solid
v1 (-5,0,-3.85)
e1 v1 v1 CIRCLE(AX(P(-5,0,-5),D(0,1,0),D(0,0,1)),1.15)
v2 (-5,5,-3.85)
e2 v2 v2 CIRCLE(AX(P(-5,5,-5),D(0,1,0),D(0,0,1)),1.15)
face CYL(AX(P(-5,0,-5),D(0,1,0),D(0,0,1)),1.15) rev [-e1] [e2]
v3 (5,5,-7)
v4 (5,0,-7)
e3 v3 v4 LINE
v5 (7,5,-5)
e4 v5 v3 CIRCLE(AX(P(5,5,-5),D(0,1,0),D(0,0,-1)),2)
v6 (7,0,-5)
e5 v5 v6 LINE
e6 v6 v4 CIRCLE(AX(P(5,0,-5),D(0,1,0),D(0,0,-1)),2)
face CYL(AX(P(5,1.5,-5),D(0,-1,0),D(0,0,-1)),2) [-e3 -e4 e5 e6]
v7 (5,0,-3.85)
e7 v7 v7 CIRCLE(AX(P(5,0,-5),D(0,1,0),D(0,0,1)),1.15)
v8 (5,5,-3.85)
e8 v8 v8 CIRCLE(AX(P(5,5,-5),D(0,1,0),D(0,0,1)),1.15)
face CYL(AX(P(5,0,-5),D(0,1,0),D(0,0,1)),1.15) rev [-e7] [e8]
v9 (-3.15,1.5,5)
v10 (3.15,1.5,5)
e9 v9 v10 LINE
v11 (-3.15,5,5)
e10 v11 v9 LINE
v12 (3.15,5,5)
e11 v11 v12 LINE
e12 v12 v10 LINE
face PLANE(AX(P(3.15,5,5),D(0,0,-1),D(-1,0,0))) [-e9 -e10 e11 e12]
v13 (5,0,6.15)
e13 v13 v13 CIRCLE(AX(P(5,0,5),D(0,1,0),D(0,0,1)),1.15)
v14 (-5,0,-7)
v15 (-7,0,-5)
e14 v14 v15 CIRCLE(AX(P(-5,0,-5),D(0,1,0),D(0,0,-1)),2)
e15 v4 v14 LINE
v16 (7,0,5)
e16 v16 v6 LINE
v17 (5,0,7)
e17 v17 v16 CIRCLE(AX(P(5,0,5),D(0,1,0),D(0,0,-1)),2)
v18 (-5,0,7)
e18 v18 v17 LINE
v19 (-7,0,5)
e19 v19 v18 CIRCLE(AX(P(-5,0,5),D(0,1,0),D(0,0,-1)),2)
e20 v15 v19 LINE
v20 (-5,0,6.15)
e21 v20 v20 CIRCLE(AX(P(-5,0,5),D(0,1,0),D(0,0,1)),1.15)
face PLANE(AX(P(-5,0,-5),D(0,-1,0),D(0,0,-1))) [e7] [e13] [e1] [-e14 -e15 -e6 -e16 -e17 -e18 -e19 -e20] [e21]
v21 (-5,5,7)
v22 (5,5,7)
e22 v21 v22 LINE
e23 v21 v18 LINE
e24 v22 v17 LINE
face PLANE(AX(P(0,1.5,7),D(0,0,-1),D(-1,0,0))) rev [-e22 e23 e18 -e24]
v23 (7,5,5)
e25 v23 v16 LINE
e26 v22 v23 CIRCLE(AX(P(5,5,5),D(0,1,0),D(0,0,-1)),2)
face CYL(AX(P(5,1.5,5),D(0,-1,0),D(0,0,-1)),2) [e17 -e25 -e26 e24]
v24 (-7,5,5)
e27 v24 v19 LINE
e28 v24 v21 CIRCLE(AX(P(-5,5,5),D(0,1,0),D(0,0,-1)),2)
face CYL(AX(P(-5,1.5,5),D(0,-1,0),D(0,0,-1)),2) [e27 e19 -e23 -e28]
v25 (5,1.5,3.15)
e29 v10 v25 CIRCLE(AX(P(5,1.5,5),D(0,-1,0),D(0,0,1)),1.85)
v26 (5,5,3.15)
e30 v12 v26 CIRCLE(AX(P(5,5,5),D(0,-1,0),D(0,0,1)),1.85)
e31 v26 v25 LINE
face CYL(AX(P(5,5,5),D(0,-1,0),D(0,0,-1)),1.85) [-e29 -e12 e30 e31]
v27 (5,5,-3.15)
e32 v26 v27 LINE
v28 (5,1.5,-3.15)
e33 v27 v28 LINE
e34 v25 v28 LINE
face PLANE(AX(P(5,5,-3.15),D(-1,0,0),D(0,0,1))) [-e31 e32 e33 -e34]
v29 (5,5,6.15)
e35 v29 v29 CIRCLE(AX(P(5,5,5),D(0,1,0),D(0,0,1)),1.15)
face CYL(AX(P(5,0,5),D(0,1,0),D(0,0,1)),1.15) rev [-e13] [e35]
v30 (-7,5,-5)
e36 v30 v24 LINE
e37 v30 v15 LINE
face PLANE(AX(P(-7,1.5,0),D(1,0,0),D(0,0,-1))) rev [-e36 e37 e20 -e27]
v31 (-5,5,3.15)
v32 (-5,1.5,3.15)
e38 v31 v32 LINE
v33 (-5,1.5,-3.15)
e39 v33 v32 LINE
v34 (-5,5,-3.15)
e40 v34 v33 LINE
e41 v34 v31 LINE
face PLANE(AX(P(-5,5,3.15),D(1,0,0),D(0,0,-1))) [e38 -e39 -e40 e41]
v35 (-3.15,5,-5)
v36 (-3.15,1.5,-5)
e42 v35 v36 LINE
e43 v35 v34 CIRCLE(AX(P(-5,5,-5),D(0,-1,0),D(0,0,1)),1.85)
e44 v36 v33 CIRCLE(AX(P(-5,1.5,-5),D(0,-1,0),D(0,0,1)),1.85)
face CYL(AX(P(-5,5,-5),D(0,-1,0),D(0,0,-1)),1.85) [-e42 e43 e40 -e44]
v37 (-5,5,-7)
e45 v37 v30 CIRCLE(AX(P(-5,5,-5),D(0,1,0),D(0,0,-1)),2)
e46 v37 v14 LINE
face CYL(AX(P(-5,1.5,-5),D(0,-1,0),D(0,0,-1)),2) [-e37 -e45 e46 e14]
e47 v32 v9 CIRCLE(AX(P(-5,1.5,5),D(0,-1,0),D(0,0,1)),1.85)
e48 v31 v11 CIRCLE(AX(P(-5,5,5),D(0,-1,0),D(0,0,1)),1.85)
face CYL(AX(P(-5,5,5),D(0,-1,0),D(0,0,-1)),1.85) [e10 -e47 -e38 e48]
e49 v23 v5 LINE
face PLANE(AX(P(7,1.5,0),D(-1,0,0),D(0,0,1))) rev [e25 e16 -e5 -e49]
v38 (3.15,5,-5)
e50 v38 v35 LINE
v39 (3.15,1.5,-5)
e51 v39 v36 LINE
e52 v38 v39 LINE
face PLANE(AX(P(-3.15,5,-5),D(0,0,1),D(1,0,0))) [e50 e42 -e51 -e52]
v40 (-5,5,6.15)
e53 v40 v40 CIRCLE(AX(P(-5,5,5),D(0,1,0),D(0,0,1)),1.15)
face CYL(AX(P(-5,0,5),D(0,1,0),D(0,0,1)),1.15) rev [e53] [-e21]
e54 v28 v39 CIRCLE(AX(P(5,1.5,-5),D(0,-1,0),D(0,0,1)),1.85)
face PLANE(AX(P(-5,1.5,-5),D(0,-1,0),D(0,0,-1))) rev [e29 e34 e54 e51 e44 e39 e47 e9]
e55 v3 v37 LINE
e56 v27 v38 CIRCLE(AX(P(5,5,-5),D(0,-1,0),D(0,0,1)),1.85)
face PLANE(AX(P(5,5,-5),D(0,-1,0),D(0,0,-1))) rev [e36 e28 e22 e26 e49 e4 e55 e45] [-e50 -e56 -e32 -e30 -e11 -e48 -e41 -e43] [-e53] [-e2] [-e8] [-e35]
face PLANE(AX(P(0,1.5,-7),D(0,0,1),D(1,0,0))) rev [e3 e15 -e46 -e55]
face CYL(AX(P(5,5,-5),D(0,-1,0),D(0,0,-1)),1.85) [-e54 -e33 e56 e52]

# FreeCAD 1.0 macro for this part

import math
import FreeCAD as App
import Part
import Sketcher

V = App.Vector
Q = App.Units.Quantity

doc = App.newDocument("Part")
body = doc.addObject("PartDesign::Body", "Body")

# Sketch on XZ plane
sketch1 = body.newObject("Sketcher::SketchObject", "Sketch")
sketch1.AttachmentSupport = (doc.getObject("XZ_Plane"), [""])
sketch1.MapMode = "FlatFace"
sketch1.addGeometry(Part.ArcOfCircle(Part.Circle(V(5, -5, 0), V(0, 0, 1), 2), math.radians(-90), math.radians(0)), False)
sketch1.addGeometry(Part.LineSegment(V(5, -7, 0), V(-5, -7, 0)), False)
sketch1.addGeometry(Part.ArcOfCircle(Part.Circle(V(-5, -5, 0), V(0, 0, 1), 2), math.radians(-180), math.radians(-90)), False)
sketch1.addGeometry(Part.LineSegment(V(-7, -5, 0), V(-7, 5, 0)), False)
sketch1.addGeometry(Part.ArcOfCircle(Part.Circle(V(-5, 5, 0), V(0, 0, 1), 2), math.radians(90), math.radians(180)), False)
sketch1.addGeometry(Part.LineSegment(V(-5, 7, 0), V(5, 7, 0)), False)
sketch1.addGeometry(Part.ArcOfCircle(Part.Circle(V(5, 5, 0), V(0, 0, 1), 2), math.radians(0), math.radians(90)), False)
sketch1.addGeometry(Part.LineSegment(V(7, 5, 0), V(7, -5, 0)), False)
sketch1.addConstraint(Sketcher.Constraint("Tangent", 0, 1, 1, 1))
sketch1.addConstraint(Sketcher.Constraint("Tangent", 1, 2, 2, 2))
sketch1.addConstraint(Sketcher.Constraint("Tangent", 2, 1, 3, 1))
sketch1.addConstraint(Sketcher.Constraint("Tangent", 3, 2, 4, 2))
sketch1.addConstraint(Sketcher.Constraint("Tangent", 4, 1, 5, 1))
sketch1.addConstraint(Sketcher.Constraint("Tangent", 5, 2, 6, 2))
sketch1.addConstraint(Sketcher.Constraint("Tangent", 6, 1, 7, 1))
sketch1.addConstraint(Sketcher.Constraint("Tangent", 7, 2, 0, 2))
sketch1.addConstraint(Sketcher.Constraint("Horizontal", 1))
sketch1.addConstraint(Sketcher.Constraint("Vertical", 3))
sketch1.addConstraint(Sketcher.Constraint("Horizontal", 5))
sketch1.addConstraint(Sketcher.Constraint("Vertical", 7))
sketch1.addConstraint(Sketcher.Constraint("Equal", 0, 2))
sketch1.addConstraint(Sketcher.Constraint("Equal", 2, 4))
sketch1.addConstraint(Sketcher.Constraint("Equal", 4, 6))
sketch1.addConstraint(Sketcher.Constraint("Symmetric", 0, 3, 4, 3, -1, 1))
sketch1.addConstraint(Sketcher.Constraint("Equal", 5, 3))
sketch1.addConstraint(Sketcher.Constraint("Radius", 0, Q("2 mm")))
sketch1.addConstraint(Sketcher.Constraint("DistanceX", 1, 2, 1, 1, Q("10 mm")))
pad1 = body.newObject("PartDesign::Pad", "Pad")
pad1.Profile = sketch1
pad1.Length = 1.5
pad1.Reversed = True

# Sketch on XZ plane
sketch2 = body.newObject("Sketcher::SketchObject", "Sketch001")
sketch2.AttachmentSupport = (doc.getObject("XZ_Plane"), [""])
sketch2.MapMode = "FlatFace"
sketch2.AttachmentOffset = App.Placement(V(0, 0, -1.5), App.Rotation())
sketch2.addGeometry(Part.ArcOfCircle(Part.Circle(V(5, -5, 0), V(0, 0, 1), 2), math.radians(-90), math.radians(0)), False)
sketch2.addGeometry(Part.LineSegment(V(5, -7, 0), V(-5, -7, 0)), False)
sketch2.addGeometry(Part.ArcOfCircle(Part.Circle(V(-5, -5, 0), V(0, 0, 1), 2), math.radians(-180), math.radians(-90)), False)
sketch2.addGeometry(Part.LineSegment(V(-7, -5, 0), V(-7, 5, 0)), False)
sketch2.addGeometry(Part.ArcOfCircle(Part.Circle(V(-5, 5, 0), V(0, 0, 1), 2), math.radians(90), math.radians(180)), False)
sketch2.addGeometry(Part.LineSegment(V(-5, 7, 0), V(5, 7, 0)), False)
sketch2.addGeometry(Part.ArcOfCircle(Part.Circle(V(5, 5, 0), V(0, 0, 1), 2), math.radians(0), math.radians(90)), False)
sketch2.addGeometry(Part.LineSegment(V(7, 5, 0), V(7, -5, 0)), False)
sketch2.addGeometry(Part.ArcOfCircle(Part.Circle(V(5, -5, 0), V(0, 0, 1), 1.9), math.radians(90), math.radians(180)), False)
sketch2.addGeometry(Part.LineSegment(V(5, -3.1, 0), V(5, 3.1, 0)), False)
sketch2.addGeometry(Part.ArcOfCircle(Part.Circle(V(5, 5, 0), V(0, 0, 1), 1.9), math.radians(-180), math.radians(-90)), False)
sketch2.addGeometry(Part.LineSegment(V(3.1, 5, 0), V(-3.1, 5, 0)), False)
sketch2.addGeometry(Part.ArcOfCircle(Part.Circle(V(-5, 5, 0), V(0, 0, 1), 1.9), math.radians(-90), math.radians(0)), False)
sketch2.addGeometry(Part.LineSegment(V(-5, 3.1, 0), V(-5, -3.1, 0)), False)
sketch2.addGeometry(Part.ArcOfCircle(Part.Circle(V(-5, -5, 0), V(0, 0, 1), 1.9), math.radians(0), math.radians(90)), False)
sketch2.addGeometry(Part.LineSegment(V(-3.1, -5, 0), V(3.1, -5, 0)), False)
sketch2.addConstraint(Sketcher.Constraint("Tangent", 0, 1, 1, 1))
sketch2.addConstraint(Sketcher.Constraint("Tangent", 1, 2, 2, 2))
sketch2.addConstraint(Sketcher.Constraint("Tangent", 2, 1, 3, 1))
sketch2.addConstraint(Sketcher.Constraint("Tangent", 3, 2, 4, 2))
sketch2.addConstraint(Sketcher.Constraint("Tangent", 4, 1, 5, 1))
sketch2.addConstraint(Sketcher.Constraint("Tangent", 5, 2, 6, 2))
sketch2.addConstraint(Sketcher.Constraint("Tangent", 6, 1, 7, 1))
sketch2.addConstraint(Sketcher.Constraint("Tangent", 7, 2, 0, 2))
sketch2.addConstraint(Sketcher.Constraint("Coincident", 8, 1, 9, 1))
sketch2.addConstraint(Sketcher.Constraint("Coincident", 9, 2, 10, 2))
sketch2.addConstraint(Sketcher.Constraint("Coincident", 10, 1, 11, 1))
sketch2.addConstraint(Sketcher.Constraint("Coincident", 11, 2, 12, 2))
sketch2.addConstraint(Sketcher.Constraint("Coincident", 12, 1, 13, 1))
sketch2.addConstraint(Sketcher.Constraint("Coincident", 13, 2, 14, 2))
sketch2.addConstraint(Sketcher.Constraint("Coincident", 14, 1, 15, 1))
sketch2.addConstraint(Sketcher.Constraint("Coincident", 15, 2, 8, 2))
sketch2.addConstraint(Sketcher.Constraint("Horizontal", 1))
sketch2.addConstraint(Sketcher.Constraint("Vertical", 3))
sketch2.addConstraint(Sketcher.Constraint("Horizontal", 5))
sketch2.addConstraint(Sketcher.Constraint("Vertical", 7))
sketch2.addConstraint(Sketcher.Constraint("Vertical", 9))
sketch2.addConstraint(Sketcher.Constraint("Horizontal", 11))
sketch2.addConstraint(Sketcher.Constraint("Vertical", 13))
sketch2.addConstraint(Sketcher.Constraint("Horizontal", 15))
sketch2.addConstraint(Sketcher.Constraint("Coincident", 8, 3, 0, 3))
sketch2.addConstraint(Sketcher.Constraint("Coincident", 10, 3, 6, 3))
sketch2.addConstraint(Sketcher.Constraint("Coincident", 12, 3, 4, 3))
sketch2.addConstraint(Sketcher.Constraint("Coincident", 14, 3, 2, 3))
sketch2.addConstraint(Sketcher.Constraint("Equal", 0, 2))
sketch2.addConstraint(Sketcher.Constraint("Equal", 2, 4))
sketch2.addConstraint(Sketcher.Constraint("Equal", 4, 6))
sketch2.addConstraint(Sketcher.Constraint("Equal", 8, 10))
sketch2.addConstraint(Sketcher.Constraint("Equal", 10, 12))
sketch2.addConstraint(Sketcher.Constraint("Equal", 12, 14))
sketch2.addConstraint(Sketcher.Constraint("Symmetric", 0, 3, 4, 3, -1, 1))
sketch2.addConstraint(Sketcher.Constraint("Horizontal", 6, 1, 10, 1))
sketch2.addConstraint(Sketcher.Constraint("Horizontal", 7, 2, 14, 1))
sketch2.addConstraint(Sketcher.Constraint("Vertical", 5, 2, 8, 1))
sketch2.addConstraint(Sketcher.Constraint("Vertical", 4, 1, 12, 1))
sketch2.addConstraint(Sketcher.Constraint("Equal", 5, 3))
sketch2.addConstraint(Sketcher.Constraint("Radius", 0, Q("2 mm")))
sketch2.addConstraint(Sketcher.Constraint("DistanceX", 1, 2, 1, 1, Q("10 mm")))
sketch2.addConstraint(Sketcher.Constraint("Radius", 8, Q("1.85 mm")))
pad2 = body.newObject("PartDesign::Pad", "Pad001")
pad2.Profile = sketch2
pad2.Length = 3.5
pad2.Reversed = True

# Sketch on XZ plane
sketch3 = body.newObject("Sketcher::SketchObject", "Sketch002")
sketch3.AttachmentSupport = (doc.getObject("XZ_Plane"), [""])
sketch3.MapMode = "FlatFace"
sketch3.AttachmentOffset = App.Placement(V(0, 0, -5), App.Rotation())
sketch3.addGeometry(Part.Circle(V(5, -5, 0), V(0, 0, 1), 1.1), False)
sketch3.addGeometry(Part.Circle(V(5, 5, 0), V(0, 0, 1), 1.1), False)
sketch3.addGeometry(Part.Circle(V(-5, 5, 0), V(0, 0, 1), 1.1), False)
sketch3.addGeometry(Part.Circle(V(-5, -5, 0), V(0, 0, 1), 1.1), False)
sketch3.addConstraint(Sketcher.Constraint("Equal", 0, 1))
sketch3.addConstraint(Sketcher.Constraint("Equal", 1, 2))
sketch3.addConstraint(Sketcher.Constraint("Equal", 2, 3))
sketch3.addConstraint(Sketcher.Constraint("Symmetric", 0, 3, 2, 3, -1, 1))
sketch3.addConstraint(Sketcher.Constraint("Symmetric", 1, 3, 3, 3, -1, 1))
sketch3.addConstraint(Sketcher.Constraint("Symmetric", 1, 3, 2, 3, -2))
sketch3.addConstraint(Sketcher.Constraint("Diameter", 0, Q("2.3 mm")))
sketch3.addConstraint(Sketcher.Constraint("DistanceX", -1, 1, 0, 3, Q("5 mm")))
sketch3.addConstraint(Sketcher.Constraint("DistanceY", 0, 3, -1, 1, Q("5 mm")))
pocket1 = body.newObject("PartDesign::Pocket", "Pocket")
pocket1.Profile = sketch3
pocket1.Type = "ThroughAll"
pocket1.Reversed = True

doc.recompute()
